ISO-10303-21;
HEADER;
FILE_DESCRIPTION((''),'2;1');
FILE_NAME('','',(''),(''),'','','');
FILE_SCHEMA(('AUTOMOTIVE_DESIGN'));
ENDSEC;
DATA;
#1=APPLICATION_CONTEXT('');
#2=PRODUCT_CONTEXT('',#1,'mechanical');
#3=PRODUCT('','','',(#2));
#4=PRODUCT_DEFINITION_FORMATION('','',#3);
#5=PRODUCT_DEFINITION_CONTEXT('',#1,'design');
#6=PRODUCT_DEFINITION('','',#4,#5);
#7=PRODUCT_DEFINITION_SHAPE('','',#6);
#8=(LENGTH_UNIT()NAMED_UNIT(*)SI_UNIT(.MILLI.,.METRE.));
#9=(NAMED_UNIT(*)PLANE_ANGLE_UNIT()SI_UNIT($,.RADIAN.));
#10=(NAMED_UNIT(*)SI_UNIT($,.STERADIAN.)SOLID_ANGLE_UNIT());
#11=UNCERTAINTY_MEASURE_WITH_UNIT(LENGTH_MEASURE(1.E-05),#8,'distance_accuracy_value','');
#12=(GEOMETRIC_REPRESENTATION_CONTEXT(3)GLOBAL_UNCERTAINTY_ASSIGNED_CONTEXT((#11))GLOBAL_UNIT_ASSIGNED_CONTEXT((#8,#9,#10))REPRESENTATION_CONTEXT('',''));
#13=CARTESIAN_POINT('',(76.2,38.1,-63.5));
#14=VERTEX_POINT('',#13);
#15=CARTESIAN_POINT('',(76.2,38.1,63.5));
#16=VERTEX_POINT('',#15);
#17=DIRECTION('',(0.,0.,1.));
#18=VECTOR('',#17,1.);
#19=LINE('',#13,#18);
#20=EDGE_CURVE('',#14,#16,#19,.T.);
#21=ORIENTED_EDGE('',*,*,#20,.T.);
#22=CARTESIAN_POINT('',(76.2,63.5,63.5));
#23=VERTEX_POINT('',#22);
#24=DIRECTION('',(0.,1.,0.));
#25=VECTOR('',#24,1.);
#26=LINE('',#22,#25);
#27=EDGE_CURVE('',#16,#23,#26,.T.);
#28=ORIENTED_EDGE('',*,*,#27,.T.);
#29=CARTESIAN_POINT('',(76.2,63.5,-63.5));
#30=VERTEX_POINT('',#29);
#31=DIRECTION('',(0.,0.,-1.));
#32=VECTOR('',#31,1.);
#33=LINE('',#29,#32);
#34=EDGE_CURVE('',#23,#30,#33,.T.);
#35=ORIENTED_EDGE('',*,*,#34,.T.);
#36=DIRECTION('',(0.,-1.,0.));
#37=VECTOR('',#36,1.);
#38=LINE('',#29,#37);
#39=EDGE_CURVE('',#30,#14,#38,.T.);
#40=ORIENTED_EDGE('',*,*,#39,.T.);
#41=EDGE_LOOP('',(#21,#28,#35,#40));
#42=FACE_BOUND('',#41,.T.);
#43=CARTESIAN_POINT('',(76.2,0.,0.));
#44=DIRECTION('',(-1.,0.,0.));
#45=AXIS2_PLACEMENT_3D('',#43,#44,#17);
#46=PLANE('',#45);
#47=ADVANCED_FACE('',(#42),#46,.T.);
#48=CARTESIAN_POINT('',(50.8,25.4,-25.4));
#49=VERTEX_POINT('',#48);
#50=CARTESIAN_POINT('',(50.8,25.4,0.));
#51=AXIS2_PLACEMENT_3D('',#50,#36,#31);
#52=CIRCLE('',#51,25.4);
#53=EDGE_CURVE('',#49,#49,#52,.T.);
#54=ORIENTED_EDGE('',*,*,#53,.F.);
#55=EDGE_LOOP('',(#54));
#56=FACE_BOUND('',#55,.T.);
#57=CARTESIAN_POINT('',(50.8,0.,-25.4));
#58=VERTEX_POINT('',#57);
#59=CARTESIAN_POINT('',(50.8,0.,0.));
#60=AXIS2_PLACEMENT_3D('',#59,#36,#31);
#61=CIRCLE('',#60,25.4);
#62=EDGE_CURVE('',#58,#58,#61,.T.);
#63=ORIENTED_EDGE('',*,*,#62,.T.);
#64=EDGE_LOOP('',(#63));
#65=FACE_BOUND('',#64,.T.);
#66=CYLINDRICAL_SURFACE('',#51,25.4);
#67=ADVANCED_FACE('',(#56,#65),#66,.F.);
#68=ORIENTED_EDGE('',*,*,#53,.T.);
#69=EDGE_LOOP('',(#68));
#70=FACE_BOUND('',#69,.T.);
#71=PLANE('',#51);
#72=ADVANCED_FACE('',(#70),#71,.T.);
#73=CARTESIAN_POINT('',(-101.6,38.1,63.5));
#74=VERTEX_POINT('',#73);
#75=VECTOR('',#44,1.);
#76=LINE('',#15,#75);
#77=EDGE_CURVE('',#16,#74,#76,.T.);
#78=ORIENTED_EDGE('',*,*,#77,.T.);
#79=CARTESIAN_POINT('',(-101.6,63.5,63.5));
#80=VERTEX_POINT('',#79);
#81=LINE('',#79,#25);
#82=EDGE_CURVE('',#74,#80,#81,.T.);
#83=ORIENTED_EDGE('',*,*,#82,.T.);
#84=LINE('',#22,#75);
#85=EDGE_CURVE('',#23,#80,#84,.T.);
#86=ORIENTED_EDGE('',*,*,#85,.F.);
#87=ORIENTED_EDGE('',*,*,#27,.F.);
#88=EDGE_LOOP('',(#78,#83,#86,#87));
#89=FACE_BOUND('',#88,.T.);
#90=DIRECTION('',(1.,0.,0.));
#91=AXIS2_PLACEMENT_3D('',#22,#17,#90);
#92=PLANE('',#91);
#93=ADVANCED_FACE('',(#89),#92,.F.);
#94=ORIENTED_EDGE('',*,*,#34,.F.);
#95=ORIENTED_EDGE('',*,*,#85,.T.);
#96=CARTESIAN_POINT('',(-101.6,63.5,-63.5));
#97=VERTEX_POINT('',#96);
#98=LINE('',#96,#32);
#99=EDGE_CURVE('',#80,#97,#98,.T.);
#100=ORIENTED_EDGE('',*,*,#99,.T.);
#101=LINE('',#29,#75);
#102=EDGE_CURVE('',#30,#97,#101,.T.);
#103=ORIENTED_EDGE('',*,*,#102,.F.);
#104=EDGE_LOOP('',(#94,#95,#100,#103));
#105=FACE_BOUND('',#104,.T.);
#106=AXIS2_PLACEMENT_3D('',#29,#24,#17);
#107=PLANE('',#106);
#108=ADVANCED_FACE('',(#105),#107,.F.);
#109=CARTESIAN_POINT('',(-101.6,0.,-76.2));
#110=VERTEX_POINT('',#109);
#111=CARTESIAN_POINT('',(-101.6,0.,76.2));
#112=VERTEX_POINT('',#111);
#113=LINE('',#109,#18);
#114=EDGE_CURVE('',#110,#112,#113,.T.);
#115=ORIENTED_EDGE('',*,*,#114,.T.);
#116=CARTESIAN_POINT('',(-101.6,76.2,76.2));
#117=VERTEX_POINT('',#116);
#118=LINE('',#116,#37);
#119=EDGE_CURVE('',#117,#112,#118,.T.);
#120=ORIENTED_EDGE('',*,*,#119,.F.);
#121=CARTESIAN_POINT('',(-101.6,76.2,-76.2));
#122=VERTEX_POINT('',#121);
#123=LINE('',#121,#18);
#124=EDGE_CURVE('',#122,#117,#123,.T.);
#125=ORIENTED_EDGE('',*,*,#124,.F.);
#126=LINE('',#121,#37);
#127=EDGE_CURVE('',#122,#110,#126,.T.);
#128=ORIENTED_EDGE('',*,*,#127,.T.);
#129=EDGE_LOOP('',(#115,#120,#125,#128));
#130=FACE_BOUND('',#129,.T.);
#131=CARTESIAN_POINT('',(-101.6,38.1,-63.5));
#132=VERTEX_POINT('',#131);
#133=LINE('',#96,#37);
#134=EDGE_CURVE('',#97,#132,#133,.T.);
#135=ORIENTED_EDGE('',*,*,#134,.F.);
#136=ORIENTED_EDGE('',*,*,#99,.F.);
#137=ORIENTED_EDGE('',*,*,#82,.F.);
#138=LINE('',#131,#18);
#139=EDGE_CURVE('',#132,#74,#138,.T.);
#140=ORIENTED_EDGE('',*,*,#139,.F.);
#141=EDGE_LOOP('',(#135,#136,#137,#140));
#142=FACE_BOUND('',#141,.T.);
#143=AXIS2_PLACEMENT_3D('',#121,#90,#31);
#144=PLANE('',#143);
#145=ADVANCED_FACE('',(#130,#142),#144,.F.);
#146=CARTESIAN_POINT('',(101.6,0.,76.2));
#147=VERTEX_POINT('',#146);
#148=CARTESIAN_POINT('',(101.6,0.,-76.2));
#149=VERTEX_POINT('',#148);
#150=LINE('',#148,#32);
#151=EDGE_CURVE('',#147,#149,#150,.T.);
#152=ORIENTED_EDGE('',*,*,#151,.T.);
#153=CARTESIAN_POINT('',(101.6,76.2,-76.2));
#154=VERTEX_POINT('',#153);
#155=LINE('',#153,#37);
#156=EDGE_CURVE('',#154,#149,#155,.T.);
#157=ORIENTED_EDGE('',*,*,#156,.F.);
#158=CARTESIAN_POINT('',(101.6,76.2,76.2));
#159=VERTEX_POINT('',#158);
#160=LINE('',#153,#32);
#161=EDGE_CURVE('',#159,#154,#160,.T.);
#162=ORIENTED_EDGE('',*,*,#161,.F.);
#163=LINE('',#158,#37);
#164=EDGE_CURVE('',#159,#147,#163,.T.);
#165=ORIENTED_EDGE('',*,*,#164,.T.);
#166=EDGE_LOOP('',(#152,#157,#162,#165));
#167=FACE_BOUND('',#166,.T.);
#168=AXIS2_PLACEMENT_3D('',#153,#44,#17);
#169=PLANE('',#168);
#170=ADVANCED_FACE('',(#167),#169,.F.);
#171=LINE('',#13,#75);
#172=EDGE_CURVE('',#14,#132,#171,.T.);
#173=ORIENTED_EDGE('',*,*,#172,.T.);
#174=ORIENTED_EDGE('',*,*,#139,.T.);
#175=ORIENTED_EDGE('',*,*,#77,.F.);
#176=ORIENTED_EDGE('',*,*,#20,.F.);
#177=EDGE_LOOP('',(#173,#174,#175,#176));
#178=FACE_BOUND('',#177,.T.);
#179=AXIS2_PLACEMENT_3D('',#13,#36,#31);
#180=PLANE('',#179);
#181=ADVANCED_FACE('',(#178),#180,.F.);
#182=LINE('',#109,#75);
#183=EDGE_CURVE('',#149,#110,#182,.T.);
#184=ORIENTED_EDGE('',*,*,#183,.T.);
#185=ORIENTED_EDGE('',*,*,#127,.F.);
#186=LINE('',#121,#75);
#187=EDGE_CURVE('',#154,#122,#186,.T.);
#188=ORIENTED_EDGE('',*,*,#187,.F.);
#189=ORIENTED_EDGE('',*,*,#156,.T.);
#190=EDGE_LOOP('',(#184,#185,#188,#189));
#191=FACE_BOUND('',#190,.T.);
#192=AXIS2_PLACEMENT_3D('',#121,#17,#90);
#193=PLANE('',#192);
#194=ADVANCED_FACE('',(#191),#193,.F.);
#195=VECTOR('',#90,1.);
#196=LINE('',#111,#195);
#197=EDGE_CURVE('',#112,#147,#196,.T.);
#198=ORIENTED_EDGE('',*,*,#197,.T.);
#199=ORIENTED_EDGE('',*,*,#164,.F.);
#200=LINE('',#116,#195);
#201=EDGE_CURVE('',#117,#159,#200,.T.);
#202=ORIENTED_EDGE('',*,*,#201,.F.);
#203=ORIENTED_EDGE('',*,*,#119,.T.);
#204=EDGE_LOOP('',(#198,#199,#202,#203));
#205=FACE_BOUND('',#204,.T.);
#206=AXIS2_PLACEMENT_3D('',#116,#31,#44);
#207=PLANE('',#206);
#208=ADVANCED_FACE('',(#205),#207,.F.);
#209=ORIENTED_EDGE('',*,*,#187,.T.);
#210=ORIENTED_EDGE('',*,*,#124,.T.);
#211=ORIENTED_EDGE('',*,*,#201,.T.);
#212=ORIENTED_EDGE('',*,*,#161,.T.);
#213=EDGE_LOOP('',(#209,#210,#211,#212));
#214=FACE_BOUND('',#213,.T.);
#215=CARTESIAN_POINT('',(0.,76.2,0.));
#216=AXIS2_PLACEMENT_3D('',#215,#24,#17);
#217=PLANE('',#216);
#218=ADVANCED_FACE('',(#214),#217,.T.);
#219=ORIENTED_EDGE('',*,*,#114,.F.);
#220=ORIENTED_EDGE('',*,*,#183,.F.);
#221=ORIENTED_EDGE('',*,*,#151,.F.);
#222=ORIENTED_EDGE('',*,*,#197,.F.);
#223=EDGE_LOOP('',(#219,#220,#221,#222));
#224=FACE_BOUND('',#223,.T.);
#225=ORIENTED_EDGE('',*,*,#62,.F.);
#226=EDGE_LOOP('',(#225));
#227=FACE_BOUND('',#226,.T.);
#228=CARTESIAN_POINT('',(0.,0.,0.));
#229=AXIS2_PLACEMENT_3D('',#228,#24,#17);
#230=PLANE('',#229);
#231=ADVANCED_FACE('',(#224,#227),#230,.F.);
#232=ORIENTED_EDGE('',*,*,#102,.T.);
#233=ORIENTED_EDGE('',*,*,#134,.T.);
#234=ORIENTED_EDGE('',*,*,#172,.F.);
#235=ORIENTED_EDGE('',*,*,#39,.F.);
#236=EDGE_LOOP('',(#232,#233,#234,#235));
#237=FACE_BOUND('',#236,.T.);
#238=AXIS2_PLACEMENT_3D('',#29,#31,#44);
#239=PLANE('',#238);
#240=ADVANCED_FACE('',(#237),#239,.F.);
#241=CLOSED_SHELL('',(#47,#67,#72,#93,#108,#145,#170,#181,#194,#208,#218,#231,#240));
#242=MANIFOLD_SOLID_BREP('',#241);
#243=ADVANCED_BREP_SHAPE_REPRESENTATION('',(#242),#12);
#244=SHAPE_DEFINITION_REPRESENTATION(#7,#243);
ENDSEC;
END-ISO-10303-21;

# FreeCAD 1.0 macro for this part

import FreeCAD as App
import Part
import Sketcher
Q = App.Units.Quantity

doc = App.newDocument("Part")
body = doc.addObject("PartDesign::Body", "Body")

# Sketch on XZ plane
sketch1 = body.newObject("Sketcher::SketchObject", "Sketch")
sketch1.AttachmentSupport = (doc.getObject("XZ_Plane"), [""])
sketch1.MapMode = "FlatFace"
sketch1.addGeometry([
    Part.LineSegment(App.Vector(-102, -76, 0), App.Vector(-102, 76, 0)),
    Part.LineSegment(App.Vector(-102, 76, 0), App.Vector(102, 76, 0)),
    Part.LineSegment(App.Vector(102, 76, 0), App.Vector(102, -76, 0)),
    Part.LineSegment(App.Vector(102, -76, 0), App.Vector(-102, -76, 0)),
], False)
sketch1.addConstraint([
    Sketcher.Constraint("Coincident", 0, 2, 1, 1),
    Sketcher.Constraint("Coincident", 1, 2, 2, 1),
    Sketcher.Constraint("Coincident", 2, 2, 3, 1),
    Sketcher.Constraint("Coincident", 3, 2, 0, 1),
    Sketcher.Constraint("Vertical", 0),
    Sketcher.Constraint("Horizontal", 1),
    Sketcher.Constraint("Vertical", 2),
    Sketcher.Constraint("Horizontal", 3),
    Sketcher.Constraint("Symmetric", 0, 2, 2, 2, -1, 1),
    Sketcher.Constraint("DistanceX", 1, 1, 1, 2, Q("8 in")),
    Sketcher.Constraint("DistanceY", 0, 1, 0, 2, Q("6 in")),
])
pad1 = body.newObject("PartDesign::Pad", "Pad")
pad1.Profile = sketch1
pad1.Length = Q("3 in")
pad1.Reversed = True

# Sketch on XZ plane
sketch2 = body.newObject("Sketcher::SketchObject", "Sketch001")
sketch2.AttachmentSupport = (doc.getObject("XZ_Plane"), [""])
sketch2.MapMode = "FlatFace"
sketch2.addGeometry(Part.Circle(App.Vector(51, 0, 0), App.Vector(0, 0, 1), 25), False)
sketch2.addConstraint([
    Sketcher.Constraint("PointOnObject", 0, 3, -1),
    Sketcher.Constraint("Diameter", 0, Q("2 in")),
    Sketcher.Constraint("DistanceX", -1, 1, 0, 3, Q("2 in")),
])
pocket1 = body.newObject("PartDesign::Pocket", "Pocket")
pocket1.Profile = sketch2
pocket1.Length = Q("1 in")

# Sketch on YZ plane
sketch3 = body.newObject("Sketcher::SketchObject", "Sketch002")
sketch3.AttachmentSupport = (doc.getObject("YZ_Plane"), [""])
sketch3.MapMode = "FlatFace"
sketch3.AttachmentOffset = App.Placement(App.Vector(0, 0, -4 * 25.4), App.Rotation())
sketch3.addGeometry([
    Part.LineSegment(App.Vector(64, -64, 0), App.Vector(38, -64, 0)),
    Part.LineSegment(App.Vector(38, -64, 0), App.Vector(38, 64, 0)),
    Part.LineSegment(App.Vector(38, 64, 0), App.Vector(64, 64, 0)),
    Part.LineSegment(App.Vector(64, 64, 0), App.Vector(64, -64, 0)),
], False)
sketch3.addConstraint([
    Sketcher.Constraint("Coincident", 0, 2, 1, 1),
    Sketcher.Constraint("Coincident", 1, 2, 2, 1),
    Sketcher.Constraint("Coincident", 2, 2, 3, 1),
    Sketcher.Constraint("Coincident", 3, 2, 0, 1),
    Sketcher.Constraint("Horizontal", 0),
    Sketcher.Constraint("Vertical", 1),
    Sketcher.Constraint("Horizontal", 2),
    Sketcher.Constraint("Vertical", 3),
    Sketcher.Constraint("DistanceX", 0, 2, 0, 1, Q("1 in")),
    Sketcher.Constraint("DistanceY", 1, 1, 1, 2, Q("5 in")),
    Sketcher.Constraint("DistanceX", -1, 1, 0, 2, Q("1.5 in")),
    Sketcher.Constraint("DistanceY", 0, 2, -1, 1, Q("2.5 in")),
])
pocket2 = body.newObject("PartDesign::Pocket", "Pocket001")
pocket2.Profile = sketch3
pocket2.Length = Q("7 in")
pocket2.Reversed = True

doc.recompute()
